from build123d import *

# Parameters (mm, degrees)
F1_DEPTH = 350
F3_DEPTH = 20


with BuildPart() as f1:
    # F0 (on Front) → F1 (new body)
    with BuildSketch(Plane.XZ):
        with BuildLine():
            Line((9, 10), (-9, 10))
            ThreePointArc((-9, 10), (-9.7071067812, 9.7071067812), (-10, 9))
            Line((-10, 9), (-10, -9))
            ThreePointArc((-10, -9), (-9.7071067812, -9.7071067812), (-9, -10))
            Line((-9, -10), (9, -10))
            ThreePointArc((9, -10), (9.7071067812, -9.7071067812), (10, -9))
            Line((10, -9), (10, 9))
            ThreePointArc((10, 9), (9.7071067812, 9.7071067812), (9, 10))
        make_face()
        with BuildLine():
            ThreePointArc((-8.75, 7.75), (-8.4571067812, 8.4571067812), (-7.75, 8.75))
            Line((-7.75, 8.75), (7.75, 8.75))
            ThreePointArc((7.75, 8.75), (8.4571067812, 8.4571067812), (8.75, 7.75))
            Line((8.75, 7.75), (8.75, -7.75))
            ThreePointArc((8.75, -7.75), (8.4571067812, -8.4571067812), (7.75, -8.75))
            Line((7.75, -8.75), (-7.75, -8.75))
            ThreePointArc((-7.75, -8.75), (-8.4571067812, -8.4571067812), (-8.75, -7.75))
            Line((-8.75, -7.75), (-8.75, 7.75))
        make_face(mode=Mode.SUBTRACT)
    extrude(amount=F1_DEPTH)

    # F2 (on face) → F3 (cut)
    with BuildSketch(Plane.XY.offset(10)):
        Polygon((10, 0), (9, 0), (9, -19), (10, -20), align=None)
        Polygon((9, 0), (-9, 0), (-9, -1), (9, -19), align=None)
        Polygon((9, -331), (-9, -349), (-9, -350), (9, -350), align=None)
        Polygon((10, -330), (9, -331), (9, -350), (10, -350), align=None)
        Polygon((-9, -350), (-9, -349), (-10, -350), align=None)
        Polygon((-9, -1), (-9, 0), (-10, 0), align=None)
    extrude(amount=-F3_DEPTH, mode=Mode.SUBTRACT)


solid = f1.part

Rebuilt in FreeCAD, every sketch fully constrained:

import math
import FreeCAD as App
import Part
import Sketcher


def add_polygon(sketch, points):
    """Adds a closed chain of lines whose ends are joined by coincident constraints."""
    first, n = sketch.GeometryCount, len(points)
    for a, b in zip(points, points[1:] + points[:1]):
        sketch.addGeometry(Part.LineSegment(App.Vector(*a, 0), App.Vector(*b, 0)), False)
    for i in range(n):
        sketch.addConstraint(Sketcher.Constraint("Coincident", first + i, 2, first + (i + 1) % n, 1))

doc = App.newDocument("Part")
body = doc.addObject("PartDesign::Body", "Body")

# Sketch on XZ plane
sketch1 = body.newObject("Sketcher::SketchObject", "Sketch")
sketch1.AttachmentSupport = (doc.getObject("XZ_Plane"), [""])
sketch1.MapMode = "FlatFace"
sketch1.addGeometry(Part.LineSegment(App.Vector(9, 10, 0), App.Vector(-9, 10, 0)), False)
sketch1.addGeometry(Part.ArcOfCircle(Part.Circle(App.Vector(-9, 9, 0), App.Vector(0, 0, 1), 1), math.radians(90), math.radians(180)), False)
sketch1.addGeometry(Part.LineSegment(App.Vector(-10, 9, 0), App.Vector(-10, -9, 0)), False)
sketch1.addGeometry(Part.ArcOfCircle(Part.Circle(App.Vector(-9, -9, 0), App.Vector(0, 0, 1), 1), math.radians(180), math.radians(270)), False)
sketch1.addGeometry(Part.LineSegment(App.Vector(-9, -10, 0), App.Vector(9, -10, 0)), False)
sketch1.addGeometry(Part.ArcOfCircle(Part.Circle(App.Vector(9, -9, 0), App.Vector(0, 0, 1), 1), math.radians(-90), math.radians(0)), False)
sketch1.addGeometry(Part.LineSegment(App.Vector(10, -9, 0), App.Vector(10, 9, 0)), False)
sketch1.addGeometry(Part.ArcOfCircle(Part.Circle(App.Vector(9, 9, 0), App.Vector(0, 0, 1), 1), math.radians(0), math.radians(90)), False)
sketch1.addGeometry(Part.LineSegment(App.Vector(-8.75, -7.75, 0), App.Vector(-8.75, 7.75, 0)), False)
sketch1.addGeometry(Part.ArcOfCircle(Part.Circle(App.Vector(-7.75, 7.75, 0), App.Vector(0, 0, 1), 1), math.radians(90), math.radians(180)), False)
sketch1.addGeometry(Part.LineSegment(App.Vector(-7.75, 8.75, 0), App.Vector(7.75, 8.75, 0)), False)
sketch1.addGeometry(Part.ArcOfCircle(Part.Circle(App.Vector(7.75, 7.75, 0), App.Vector(0, 0, 1), 1), math.radians(0), math.radians(90)), False)
sketch1.addGeometry(Part.LineSegment(App.Vector(8.75, 7.75, 0), App.Vector(8.75, -7.75, 0)), False)
sketch1.addGeometry(Part.ArcOfCircle(Part.Circle(App.Vector(7.75, -7.75, 0), App.Vector(0, 0, 1), 1), math.radians(-90), math.radians(0)), False)
sketch1.addGeometry(Part.LineSegment(App.Vector(7.75, -8.75, 0), App.Vector(-7.75, -8.75, 0)), False)
sketch1.addGeometry(Part.ArcOfCircle(Part.Circle(App.Vector(-7.75, -7.75, 0), App.Vector(0, 0, 1), 1), math.radians(180), math.radians(270)), False)
sketch1.addConstraint(Sketcher.Constraint("Tangent", 0, 2, 1, 1))
sketch1.addConstraint(Sketcher.Constraint("Tangent", 1, 2, 2, 1))
sketch1.addConstraint(Sketcher.Constraint("Tangent", 2, 2, 3, 1))
sketch1.addConstraint(Sketcher.Constraint("Tangent", 3, 2, 4, 1))
sketch1.addConstraint(Sketcher.Constraint("Tangent", 4, 2, 5, 1))
sketch1.addConstraint(Sketcher.Constraint("Tangent", 5, 2, 6, 1))
sketch1.addConstraint(Sketcher.Constraint("Tangent", 6, 2, 7, 1))
sketch1.addConstraint(Sketcher.Constraint("Tangent", 7, 2, 0, 1))
sketch1.addConstraint(Sketcher.Constraint("Tangent", 8, 2, 9, 2))
sketch1.addConstraint(Sketcher.Constraint("Tangent", 9, 1, 10, 1))
sketch1.addConstraint(Sketcher.Constraint("Tangent", 10, 2, 11, 2))
sketch1.addConstraint(Sketcher.Constraint("Tangent", 11, 1, 12, 1))
sketch1.addConstraint(Sketcher.Constraint("Tangent", 12, 2, 13, 2))
sketch1.addConstraint(Sketcher.Constraint("Tangent", 13, 1, 14, 1))
sketch1.addConstraint(Sketcher.Constraint("Tangent", 14, 2, 15, 2))
sketch1.addConstraint(Sketcher.Constraint("Tangent", 15, 1, 8, 1))
sketch1.addConstraint(Sketcher.Constraint("Horizontal", 0))
sketch1.addConstraint(Sketcher.Constraint("Vertical", 2))
sketch1.addConstraint(Sketcher.Constraint("Horizontal", 4))
sketch1.addConstraint(Sketcher.Constraint("Vertical", 6))
sketch1.addConstraint(Sketcher.Constraint("Vertical", 8))
sketch1.addConstraint(Sketcher.Constraint("Horizontal", 10))
sketch1.addConstraint(Sketcher.Constraint("Vertical", 12))
sketch1.addConstraint(Sketcher.Constraint("Horizontal", 14))
sketch1.addConstraint(Sketcher.Constraint("Equal", 1, 3))
sketch1.addConstraint(Sketcher.Constraint("Equal", 3, 5))
sketch1.addConstraint(Sketcher.Constraint("Equal", 5, 7))
sketch1.addConstraint(Sketcher.Constraint("Equal", 7, 9))
sketch1.addConstraint(Sketcher.Constraint("Equal", 9, 11))
sketch1.addConstraint(Sketcher.Constraint("Equal", 11, 13))
sketch1.addConstraint(Sketcher.Constraint("Equal", 13, 15))
sketch1.addConstraint(Sketcher.Constraint("Symmetric", 1, 3, 5, 3, -1, 1))
sketch1.addConstraint(Sketcher.Constraint("Symmetric", 9, 3, 13, 3, -1, 1))
sketch1.addConstraint(Sketcher.Constraint("Equal", 4, 2))
sketch1.addConstraint(Sketcher.Constraint("Equal", 14, 8))
sketch1.addConstraint(Sketcher.Constraint("Radius", 1, 1.0))
sketch1.addConstraint(Sketcher.Constraint("DistanceX", 0, 2, 0, 1, 18.0))
sketch1.addConstraint(Sketcher.Constraint("DistanceX", 10, 1, 10, 2, 15.5))
pad1 = body.newObject("PartDesign::Pad", "Pad")
pad1.Profile = sketch1
pad1.Length = 350

# Sketch on XY plane
sketch2 = body.newObject("Sketcher::SketchObject", "Sketch001")
sketch2.AttachmentSupport = (doc.getObject("XY_Plane"), [""])
sketch2.MapMode = "FlatFace"
sketch2.AttachmentOffset = App.Placement(App.Vector(0, 0, 10), App.Rotation())
add_polygon(sketch2, [(10, 0), (-10, 0), (10, -20)])  # lines 0-2
add_polygon(sketch2, [(10, -350), (10, -330), (-10, -350)])  # lines 3-5
sketch2.addConstraint(Sketcher.Constraint("Horizontal", 0))
sketch2.addConstraint(Sketcher.Constraint("Vertical", 2))
sketch2.addConstraint(Sketcher.Constraint("Vertical", 3))
sketch2.addConstraint(Sketcher.Constraint("Horizontal", 5))
sketch2.addConstraint(Sketcher.Constraint("Symmetric", 0, 2, 2, 2, -1, 1))
sketch2.addConstraint(Sketcher.Constraint("Perpendicular", 1, 4))
sketch2.addConstraint(Sketcher.Constraint("Vertical", 2, 2, 3, 2))
sketch2.addConstraint(Sketcher.Constraint("Vertical", 0, 2, 4, 2))
sketch2.addConstraint(Sketcher.Constraint("Equal", 5, 2))
sketch2.addConstraint(Sketcher.Constraint("DistanceX", 0, 2, 0, 1, 20.0))
sketch2.addConstraint(Sketcher.Constraint("DistanceY", 3, 2, -1, 1, 330.0))
pocket1 = body.newObject("PartDesign::Pocket", "Pocket")
pocket1.Profile = sketch2
pocket1.Length = 20

doc.recompute()
